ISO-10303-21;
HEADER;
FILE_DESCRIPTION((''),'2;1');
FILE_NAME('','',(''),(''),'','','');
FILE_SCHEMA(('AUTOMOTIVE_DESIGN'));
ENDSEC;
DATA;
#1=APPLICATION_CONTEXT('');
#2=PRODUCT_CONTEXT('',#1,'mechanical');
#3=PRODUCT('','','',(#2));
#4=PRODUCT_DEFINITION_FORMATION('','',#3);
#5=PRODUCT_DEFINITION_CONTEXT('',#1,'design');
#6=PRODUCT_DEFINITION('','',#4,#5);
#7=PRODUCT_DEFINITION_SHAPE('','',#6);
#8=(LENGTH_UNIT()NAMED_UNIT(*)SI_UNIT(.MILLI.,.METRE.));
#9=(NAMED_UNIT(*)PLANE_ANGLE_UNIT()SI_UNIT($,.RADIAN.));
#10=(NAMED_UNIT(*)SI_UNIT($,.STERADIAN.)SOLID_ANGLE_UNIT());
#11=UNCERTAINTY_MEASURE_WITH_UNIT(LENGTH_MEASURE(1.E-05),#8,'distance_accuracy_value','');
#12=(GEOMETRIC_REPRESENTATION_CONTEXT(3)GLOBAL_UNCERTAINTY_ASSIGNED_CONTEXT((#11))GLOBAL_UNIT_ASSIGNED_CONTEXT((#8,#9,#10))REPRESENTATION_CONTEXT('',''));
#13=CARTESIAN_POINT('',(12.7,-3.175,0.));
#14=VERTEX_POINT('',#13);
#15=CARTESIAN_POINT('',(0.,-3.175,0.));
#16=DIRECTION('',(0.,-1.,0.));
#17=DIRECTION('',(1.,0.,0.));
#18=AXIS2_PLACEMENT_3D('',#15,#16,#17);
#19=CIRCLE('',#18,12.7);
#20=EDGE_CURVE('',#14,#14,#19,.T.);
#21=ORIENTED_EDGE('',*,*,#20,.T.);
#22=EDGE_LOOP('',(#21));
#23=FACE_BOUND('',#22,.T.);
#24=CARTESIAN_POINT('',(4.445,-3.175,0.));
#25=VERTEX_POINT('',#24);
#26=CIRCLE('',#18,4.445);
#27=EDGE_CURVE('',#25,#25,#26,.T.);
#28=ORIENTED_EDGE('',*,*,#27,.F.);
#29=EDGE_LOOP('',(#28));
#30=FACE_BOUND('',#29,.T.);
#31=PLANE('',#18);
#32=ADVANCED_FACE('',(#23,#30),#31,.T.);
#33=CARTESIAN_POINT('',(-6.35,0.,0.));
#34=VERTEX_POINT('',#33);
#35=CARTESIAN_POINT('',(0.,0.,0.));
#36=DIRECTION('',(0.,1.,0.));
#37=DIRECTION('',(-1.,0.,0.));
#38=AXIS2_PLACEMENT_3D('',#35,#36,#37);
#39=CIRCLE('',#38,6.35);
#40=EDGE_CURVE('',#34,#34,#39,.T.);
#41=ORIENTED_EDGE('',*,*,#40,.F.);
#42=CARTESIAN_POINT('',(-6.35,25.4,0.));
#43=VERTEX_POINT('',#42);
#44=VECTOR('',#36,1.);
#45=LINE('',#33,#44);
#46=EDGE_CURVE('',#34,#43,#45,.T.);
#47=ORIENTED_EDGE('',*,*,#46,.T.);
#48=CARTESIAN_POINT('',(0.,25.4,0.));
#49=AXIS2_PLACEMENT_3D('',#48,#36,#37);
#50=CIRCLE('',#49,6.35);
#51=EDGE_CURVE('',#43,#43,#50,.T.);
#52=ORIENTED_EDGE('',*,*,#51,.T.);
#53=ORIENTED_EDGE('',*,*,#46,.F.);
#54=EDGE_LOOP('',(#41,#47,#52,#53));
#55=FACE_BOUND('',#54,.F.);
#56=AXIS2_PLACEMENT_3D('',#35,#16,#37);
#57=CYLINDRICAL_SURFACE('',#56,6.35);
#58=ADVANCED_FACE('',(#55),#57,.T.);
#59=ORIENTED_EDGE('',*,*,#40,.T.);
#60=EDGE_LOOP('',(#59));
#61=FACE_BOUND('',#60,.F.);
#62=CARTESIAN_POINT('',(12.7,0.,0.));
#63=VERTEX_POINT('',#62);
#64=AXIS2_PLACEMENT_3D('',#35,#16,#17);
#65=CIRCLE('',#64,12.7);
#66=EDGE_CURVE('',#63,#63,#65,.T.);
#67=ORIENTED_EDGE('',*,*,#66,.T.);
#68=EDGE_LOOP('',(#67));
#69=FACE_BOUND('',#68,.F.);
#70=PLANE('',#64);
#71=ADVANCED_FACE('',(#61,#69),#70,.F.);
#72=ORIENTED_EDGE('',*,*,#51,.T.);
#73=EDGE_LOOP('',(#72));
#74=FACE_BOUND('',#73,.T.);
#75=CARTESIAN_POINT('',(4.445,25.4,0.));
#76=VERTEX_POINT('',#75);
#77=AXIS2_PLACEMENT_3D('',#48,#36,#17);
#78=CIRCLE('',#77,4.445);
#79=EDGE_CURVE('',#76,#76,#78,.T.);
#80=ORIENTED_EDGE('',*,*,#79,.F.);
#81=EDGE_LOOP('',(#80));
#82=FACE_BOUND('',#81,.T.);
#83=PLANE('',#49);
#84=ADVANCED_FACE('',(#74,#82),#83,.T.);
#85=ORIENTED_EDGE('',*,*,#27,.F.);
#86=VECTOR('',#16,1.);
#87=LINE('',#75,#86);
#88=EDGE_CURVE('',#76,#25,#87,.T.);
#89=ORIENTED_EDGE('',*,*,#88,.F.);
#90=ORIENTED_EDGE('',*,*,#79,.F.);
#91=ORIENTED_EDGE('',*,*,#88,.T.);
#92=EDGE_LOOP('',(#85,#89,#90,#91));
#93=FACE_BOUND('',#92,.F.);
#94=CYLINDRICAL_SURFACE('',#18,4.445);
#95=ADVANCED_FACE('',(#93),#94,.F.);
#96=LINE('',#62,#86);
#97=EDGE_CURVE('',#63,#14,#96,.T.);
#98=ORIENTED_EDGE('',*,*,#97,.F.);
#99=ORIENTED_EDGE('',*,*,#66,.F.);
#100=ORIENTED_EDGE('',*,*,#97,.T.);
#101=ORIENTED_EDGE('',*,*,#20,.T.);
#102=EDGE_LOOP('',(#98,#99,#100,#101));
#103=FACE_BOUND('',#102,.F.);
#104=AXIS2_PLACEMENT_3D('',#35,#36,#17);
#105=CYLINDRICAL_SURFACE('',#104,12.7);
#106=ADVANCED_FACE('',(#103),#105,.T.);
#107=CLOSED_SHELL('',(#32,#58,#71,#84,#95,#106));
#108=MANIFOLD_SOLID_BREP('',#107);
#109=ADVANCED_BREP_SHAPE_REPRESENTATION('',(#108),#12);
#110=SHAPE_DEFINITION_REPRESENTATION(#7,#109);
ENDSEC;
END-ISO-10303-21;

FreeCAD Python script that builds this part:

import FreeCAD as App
import Part
import Sketcher
Q = App.Units.Quantity

doc = App.newDocument("Part")
params = doc.addObject("Spreadsheet::Sheet", "Params")
for row, (alias, value) in enumerate([
    ("sketch1_diameter", "0.5 in"),
    ("pad1_length", "1 in"),
    ("sketch2_diameter", "0.35 in"),
    ("pocket1_length", "1.125 in"),
    ("sketch3_diameter", "1 in"),
    ("pad2_length", "0.125 in"),
    ("sketch4_diameter", "0.35 in"),
    ("pocket2_length", "0.125 in"),
], start=1):
    params.set(f"A{row}", alias)
    params.set(f"B{row}", "=" + value)
    params.setAlias(f"B{row}", alias)

body = doc.addObject("PartDesign::Body", "Body")

# Sketch on XZ plane
sketch1 = doc.addObject("Sketcher::SketchObject", "Sketch")
body.addObject(sketch1)
sketch1.AttachmentSupport = (doc.XZ_Plane, [""])
sketch1.MapMode = "FlatFace"
sketch1.addGeometry(Part.Circle(App.Vector(0, 0, 0), App.Vector(0, 0, 1), 6.35), False)
sketch1.addConstraint([
    Sketcher.Constraint("Coincident", 0, 3, -1, 1),
    Sketcher.Constraint("Diameter", 0, Q("0.5 in")),
])
sketch1.setExpression("Constraints[1]", "Params.sketch1_diameter")
pad1 = doc.addObject("PartDesign::Pad", "Pad")
body.addObject(pad1)
pad1.Profile = sketch1
pad1.setExpression("Length", "Params.pad1_length")
pad1.Reversed = True

# Sketch on XZ plane
sketch2 = doc.addObject("Sketcher::SketchObject", "Sketch001")
body.addObject(sketch2)
sketch2.AttachmentSupport = (doc.XZ_Plane, [""])
sketch2.MapMode = "FlatFace"
sketch2.AttachmentOffset = App.Placement(App.Vector(0, 0, -1 * 25.4), App.Rotation())
sketch2.addGeometry(Part.Circle(App.Vector(0, 0, 0), App.Vector(0, 0, 1), 4.445), False)
sketch2.addConstraint([
    Sketcher.Constraint("Coincident", 0, 3, -1, 1),
    Sketcher.Constraint("Diameter", 0, Q("0.35 in")),
])
sketch2.setExpression("Constraints[1]", "Params.sketch2_diameter")
pocket1 = doc.addObject("PartDesign::Pocket", "Pocket")
body.addObject(pocket1)
pocket1.Profile = sketch2
pocket1.setExpression("Length", "Params.pocket1_length")
pocket1.Reversed = True

# Sketch on XZ plane
sketch3 = doc.addObject("Sketcher::SketchObject", "Sketch002")
body.addObject(sketch3)
sketch3.AttachmentSupport = (doc.XZ_Plane, [""])
sketch3.MapMode = "FlatFace"
sketch3.addGeometry(Part.Circle(App.Vector(0, 0, 0), App.Vector(0, 0, 1), 12.7), False)
sketch3.addConstraint([
    Sketcher.Constraint("Coincident", 0, 3, -1, 1),
    Sketcher.Constraint("Diameter", 0, Q("1 in")),
])
sketch3.setExpression("Constraints[1]", "Params.sketch3_diameter")
pad2 = doc.addObject("PartDesign::Pad", "Pad001")
body.addObject(pad2)
pad2.Profile = sketch3
pad2.setExpression("Length", "Params.pad2_length")

# Sketch on XZ plane
sketch4 = doc.addObject("Sketcher::SketchObject", "Sketch003")
body.addObject(sketch4)
sketch4.AttachmentSupport = (doc.XZ_Plane, [""])
sketch4.MapMode = "FlatFace"
sketch4.AttachmentOffset = App.Placement(App.Vector(0, 0, 0.125 * 25.4), App.Rotation())
sketch4.addGeometry(Part.Circle(App.Vector(0, 0, 0), App.Vector(0, 0, 1), 4.445), False)
sketch4.addConstraint([
    Sketcher.Constraint("Coincident", 0, 3, -1, 1),
    Sketcher.Constraint("Diameter", 0, Q("0.35 in")),
])
sketch4.setExpression("Constraints[1]", "Params.sketch4_diameter")
pocket2 = doc.addObject("PartDesign::Pocket", "Pocket001")
body.addObject(pocket2)
pocket2.Profile = sketch4
pocket2.setExpression("Length", "Params.pocket2_length")

doc.recompute()
